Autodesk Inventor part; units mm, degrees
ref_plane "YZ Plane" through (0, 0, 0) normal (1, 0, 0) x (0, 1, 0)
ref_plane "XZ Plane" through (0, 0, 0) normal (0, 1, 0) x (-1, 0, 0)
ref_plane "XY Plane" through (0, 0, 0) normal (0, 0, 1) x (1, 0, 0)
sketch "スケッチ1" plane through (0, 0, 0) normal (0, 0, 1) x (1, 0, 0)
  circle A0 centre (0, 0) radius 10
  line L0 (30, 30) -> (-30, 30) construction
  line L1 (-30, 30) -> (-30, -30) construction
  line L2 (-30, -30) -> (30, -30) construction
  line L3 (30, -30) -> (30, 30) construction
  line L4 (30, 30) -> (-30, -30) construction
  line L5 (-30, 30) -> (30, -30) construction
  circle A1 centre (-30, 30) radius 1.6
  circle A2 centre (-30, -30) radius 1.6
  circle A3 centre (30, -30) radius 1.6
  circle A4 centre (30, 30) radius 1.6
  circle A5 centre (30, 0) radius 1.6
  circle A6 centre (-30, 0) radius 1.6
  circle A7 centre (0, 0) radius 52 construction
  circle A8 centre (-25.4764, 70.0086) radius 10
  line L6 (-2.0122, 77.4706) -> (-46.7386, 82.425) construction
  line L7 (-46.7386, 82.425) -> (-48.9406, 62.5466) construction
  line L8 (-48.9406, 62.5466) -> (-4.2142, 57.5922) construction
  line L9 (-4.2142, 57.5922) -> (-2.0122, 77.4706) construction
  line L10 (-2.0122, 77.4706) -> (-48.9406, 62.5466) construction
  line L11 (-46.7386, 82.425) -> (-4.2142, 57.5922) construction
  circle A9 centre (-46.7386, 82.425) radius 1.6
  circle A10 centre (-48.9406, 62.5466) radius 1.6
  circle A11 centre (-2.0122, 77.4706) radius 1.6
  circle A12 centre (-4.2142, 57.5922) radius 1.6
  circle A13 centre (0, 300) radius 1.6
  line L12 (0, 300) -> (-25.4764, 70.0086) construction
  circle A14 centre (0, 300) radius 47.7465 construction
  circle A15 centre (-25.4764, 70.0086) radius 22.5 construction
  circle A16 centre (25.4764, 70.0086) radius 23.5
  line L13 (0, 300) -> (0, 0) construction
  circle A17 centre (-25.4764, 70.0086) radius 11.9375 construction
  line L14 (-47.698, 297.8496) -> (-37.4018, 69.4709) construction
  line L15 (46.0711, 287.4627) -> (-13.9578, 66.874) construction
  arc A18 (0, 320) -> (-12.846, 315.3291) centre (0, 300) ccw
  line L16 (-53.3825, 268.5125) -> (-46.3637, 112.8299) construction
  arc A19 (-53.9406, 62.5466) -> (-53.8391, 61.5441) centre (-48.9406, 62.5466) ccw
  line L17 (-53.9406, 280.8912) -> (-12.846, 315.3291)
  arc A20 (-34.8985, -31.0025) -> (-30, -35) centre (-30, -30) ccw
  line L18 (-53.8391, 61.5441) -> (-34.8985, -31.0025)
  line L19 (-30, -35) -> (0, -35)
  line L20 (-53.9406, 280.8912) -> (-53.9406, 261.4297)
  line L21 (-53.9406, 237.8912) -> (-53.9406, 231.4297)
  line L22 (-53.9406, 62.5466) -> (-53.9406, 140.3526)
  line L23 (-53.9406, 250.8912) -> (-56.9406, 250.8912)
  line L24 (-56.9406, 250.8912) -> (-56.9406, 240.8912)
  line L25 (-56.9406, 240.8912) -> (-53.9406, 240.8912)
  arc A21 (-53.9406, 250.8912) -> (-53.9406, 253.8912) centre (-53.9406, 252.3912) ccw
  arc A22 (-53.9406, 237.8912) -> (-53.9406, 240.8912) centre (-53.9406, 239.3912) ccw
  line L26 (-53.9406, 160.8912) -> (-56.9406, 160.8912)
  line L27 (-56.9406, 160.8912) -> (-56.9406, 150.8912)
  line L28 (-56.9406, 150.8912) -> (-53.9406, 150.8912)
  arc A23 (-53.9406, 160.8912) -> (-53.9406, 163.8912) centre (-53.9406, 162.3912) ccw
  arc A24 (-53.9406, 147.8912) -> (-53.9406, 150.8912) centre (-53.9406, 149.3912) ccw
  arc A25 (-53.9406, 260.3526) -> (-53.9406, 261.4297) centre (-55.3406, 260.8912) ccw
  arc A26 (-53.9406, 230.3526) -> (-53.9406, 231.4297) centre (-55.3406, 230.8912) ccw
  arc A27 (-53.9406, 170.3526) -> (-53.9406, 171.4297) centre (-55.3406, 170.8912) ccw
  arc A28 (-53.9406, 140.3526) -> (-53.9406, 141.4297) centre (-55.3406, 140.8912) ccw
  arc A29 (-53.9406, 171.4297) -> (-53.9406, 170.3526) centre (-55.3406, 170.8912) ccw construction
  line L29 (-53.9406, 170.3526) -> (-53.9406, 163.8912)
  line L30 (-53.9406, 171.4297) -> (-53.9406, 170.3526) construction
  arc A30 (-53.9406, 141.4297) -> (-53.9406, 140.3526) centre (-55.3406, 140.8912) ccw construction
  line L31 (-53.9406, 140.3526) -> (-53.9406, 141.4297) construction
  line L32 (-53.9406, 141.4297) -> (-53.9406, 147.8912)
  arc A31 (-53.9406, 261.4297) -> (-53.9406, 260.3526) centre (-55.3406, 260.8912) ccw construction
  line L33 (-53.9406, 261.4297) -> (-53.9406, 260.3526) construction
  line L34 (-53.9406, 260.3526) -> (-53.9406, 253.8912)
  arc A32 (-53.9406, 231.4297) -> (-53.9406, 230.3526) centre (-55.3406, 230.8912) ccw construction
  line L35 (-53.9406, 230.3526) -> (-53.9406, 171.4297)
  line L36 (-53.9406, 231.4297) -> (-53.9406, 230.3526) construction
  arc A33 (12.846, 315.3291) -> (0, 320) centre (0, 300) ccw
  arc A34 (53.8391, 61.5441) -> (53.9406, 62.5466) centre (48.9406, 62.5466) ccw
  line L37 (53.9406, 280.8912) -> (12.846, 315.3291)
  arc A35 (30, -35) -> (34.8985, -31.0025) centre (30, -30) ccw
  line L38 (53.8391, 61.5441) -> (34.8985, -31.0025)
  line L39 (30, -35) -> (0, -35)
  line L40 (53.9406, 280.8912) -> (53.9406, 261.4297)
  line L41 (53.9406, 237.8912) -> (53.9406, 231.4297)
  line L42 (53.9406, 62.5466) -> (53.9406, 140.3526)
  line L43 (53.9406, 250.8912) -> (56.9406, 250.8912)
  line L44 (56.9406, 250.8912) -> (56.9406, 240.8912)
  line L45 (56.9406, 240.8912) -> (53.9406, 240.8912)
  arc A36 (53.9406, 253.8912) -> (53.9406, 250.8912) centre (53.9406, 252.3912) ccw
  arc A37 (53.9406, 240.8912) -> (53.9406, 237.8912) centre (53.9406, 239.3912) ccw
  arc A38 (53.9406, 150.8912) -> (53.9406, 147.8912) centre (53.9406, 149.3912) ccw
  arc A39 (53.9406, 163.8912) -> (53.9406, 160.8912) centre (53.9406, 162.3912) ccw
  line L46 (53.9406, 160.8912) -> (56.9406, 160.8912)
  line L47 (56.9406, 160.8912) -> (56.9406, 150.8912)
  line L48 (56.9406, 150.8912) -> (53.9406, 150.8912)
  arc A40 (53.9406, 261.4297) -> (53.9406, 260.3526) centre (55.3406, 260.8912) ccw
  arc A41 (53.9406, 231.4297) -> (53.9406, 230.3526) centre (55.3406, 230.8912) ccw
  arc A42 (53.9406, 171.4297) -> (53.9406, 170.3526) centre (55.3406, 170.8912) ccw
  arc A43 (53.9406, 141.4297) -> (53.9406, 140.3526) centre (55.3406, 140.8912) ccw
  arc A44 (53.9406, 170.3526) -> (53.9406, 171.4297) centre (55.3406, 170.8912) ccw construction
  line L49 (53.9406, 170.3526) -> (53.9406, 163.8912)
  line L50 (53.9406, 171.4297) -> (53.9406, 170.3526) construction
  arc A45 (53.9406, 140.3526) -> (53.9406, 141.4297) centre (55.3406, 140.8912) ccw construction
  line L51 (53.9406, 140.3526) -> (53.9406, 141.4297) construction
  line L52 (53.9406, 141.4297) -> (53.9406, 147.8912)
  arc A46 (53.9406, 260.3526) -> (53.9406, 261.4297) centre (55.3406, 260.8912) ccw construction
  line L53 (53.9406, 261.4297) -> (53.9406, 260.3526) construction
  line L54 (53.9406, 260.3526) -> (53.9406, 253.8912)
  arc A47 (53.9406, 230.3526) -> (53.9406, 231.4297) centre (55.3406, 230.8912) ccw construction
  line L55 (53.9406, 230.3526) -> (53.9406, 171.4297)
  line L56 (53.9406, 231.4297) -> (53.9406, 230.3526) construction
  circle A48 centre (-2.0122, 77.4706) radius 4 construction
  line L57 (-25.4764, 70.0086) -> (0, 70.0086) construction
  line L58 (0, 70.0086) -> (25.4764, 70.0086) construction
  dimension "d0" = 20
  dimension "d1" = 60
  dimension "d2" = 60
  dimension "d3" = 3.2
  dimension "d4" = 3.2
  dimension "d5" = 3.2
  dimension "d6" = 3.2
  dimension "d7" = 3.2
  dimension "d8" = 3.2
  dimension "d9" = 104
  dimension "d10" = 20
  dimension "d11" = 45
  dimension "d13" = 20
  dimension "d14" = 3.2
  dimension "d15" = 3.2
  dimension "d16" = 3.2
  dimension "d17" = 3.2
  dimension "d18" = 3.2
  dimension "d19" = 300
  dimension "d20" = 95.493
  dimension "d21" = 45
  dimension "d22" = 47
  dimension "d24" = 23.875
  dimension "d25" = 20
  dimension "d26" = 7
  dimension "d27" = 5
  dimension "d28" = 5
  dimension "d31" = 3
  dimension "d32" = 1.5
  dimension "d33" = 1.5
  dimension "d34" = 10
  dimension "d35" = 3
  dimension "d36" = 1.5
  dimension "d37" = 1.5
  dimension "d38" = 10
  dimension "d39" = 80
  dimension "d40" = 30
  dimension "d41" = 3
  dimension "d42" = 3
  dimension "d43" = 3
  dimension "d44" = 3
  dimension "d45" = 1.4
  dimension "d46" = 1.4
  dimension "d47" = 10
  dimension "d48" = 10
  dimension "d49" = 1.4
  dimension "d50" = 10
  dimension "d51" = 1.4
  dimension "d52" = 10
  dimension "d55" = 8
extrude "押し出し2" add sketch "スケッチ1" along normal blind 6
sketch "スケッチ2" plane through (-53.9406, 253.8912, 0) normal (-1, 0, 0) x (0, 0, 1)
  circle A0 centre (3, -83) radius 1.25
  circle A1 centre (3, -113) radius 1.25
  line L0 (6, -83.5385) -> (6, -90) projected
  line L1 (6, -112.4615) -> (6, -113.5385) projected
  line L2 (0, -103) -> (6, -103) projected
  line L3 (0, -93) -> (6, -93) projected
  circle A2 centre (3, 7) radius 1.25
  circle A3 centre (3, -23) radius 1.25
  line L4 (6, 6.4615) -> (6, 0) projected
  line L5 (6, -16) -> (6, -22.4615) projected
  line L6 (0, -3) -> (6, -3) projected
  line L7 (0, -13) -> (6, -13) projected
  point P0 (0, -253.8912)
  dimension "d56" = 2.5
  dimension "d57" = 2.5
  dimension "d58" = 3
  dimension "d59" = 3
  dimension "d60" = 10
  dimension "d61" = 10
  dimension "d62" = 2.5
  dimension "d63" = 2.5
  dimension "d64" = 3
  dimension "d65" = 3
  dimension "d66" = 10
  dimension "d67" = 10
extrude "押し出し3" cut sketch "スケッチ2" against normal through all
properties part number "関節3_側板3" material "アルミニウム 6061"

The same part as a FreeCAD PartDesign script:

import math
import FreeCAD as App
import Part
import Sketcher
from FreeCAD import Vector

doc = App.newDocument("Part")
body = doc.addObject("PartDesign::Body", "Body")

# Sketch on XY plane
sketch1 = body.newObject("Sketcher::SketchObject", "Sketch")
sketch1.AttachmentSupport = (doc.getObject("XY_Plane"), [""])
sketch1.MapMode = "FlatFace"
sketch1.addGeometry([
    Part.ArcOfCircle(Part.Circle(Vector(0, 300, 0), Vector(0, 0, 1), 20), math.radians(50.036522), math.radians(90)),  # 0
    Part.ArcOfCircle(Part.Circle(Vector(0, 300, 0), Vector(0, 0, 1), 20.000026), math.radians(90), math.radians(129.963478)),  # 1
    Part.LineSegment(Vector(-12.846, 315.3291, 0), Vector(-53.9406, 280.8912, 0)),  # 2
    Part.LineSegment(Vector(-53.9406, 280.8912, 0), Vector(-53.9406, 261.4297, 0)),  # 3
    Part.ArcOfCircle(Part.Circle(Vector(-55.3406, 260.8912, 0), Vector(0, 0, 1), 1.499994), math.radians(-21.042447), math.radians(21.038882)),  # 4
    Part.LineSegment(Vector(-53.9406, 260.3526, 0), Vector(-53.9406, 253.8912, 0)),  # 5
    Part.ArcOfCircle(Part.Circle(Vector(-53.9406, 252.3912, 0), Vector(0, 0, 1), 1.5), math.radians(-90), math.radians(90)),  # 6
    Part.LineSegment(Vector(-53.9406, 250.8912, 0), Vector(-56.9406, 250.8912, 0)),  # 7
    Part.LineSegment(Vector(-56.9406, 250.8912, 0), Vector(-56.9406, 240.8912, 0)),  # 8
    Part.LineSegment(Vector(-56.9406, 240.8912, 0), Vector(-53.9406, 240.8912, 0)),  # 9
    Part.ArcOfCircle(Part.Circle(Vector(-53.9406, 239.3912, 0), Vector(0, 0, 1), 1.5), math.radians(-90), math.radians(90)),  # 10
    Part.LineSegment(Vector(-53.9406, 237.8912, 0), Vector(-53.9406, 231.4297, 0)),  # 11
    Part.ArcOfCircle(Part.Circle(Vector(-55.3406, 230.8912, 0), Vector(0, 0, 1), 1.499994), math.radians(-21.042447), math.radians(21.038882)),  # 12
    Part.LineSegment(Vector(-53.9406, 230.3526, 0), Vector(-53.9406, 171.4297, 0)),  # 13
    Part.ArcOfCircle(Part.Circle(Vector(-55.3406, 170.8912, 0), Vector(0, 0, 1), 1.499994), math.radians(-21.042447), math.radians(21.038882)),  # 14
    Part.LineSegment(Vector(-53.9406, 170.3526, 0), Vector(-53.9406, 163.8912, 0)),  # 15
    Part.ArcOfCircle(Part.Circle(Vector(-53.9406, 162.3912, 0), Vector(0, 0, 1), 1.5), math.radians(-90), math.radians(90)),  # 16
    Part.LineSegment(Vector(-53.9406, 160.8912, 0), Vector(-56.9406, 160.8912, 0)),  # 17
    Part.LineSegment(Vector(-56.9406, 160.8912, 0), Vector(-56.9406, 150.8912, 0)),  # 18
    Part.LineSegment(Vector(-56.9406, 150.8912, 0), Vector(-53.9406, 150.8912, 0)),  # 19
    Part.ArcOfCircle(Part.Circle(Vector(-53.9406, 149.3912, 0), Vector(0, 0, 1), 1.5), math.radians(-90), math.radians(90)),  # 20
    Part.LineSegment(Vector(-53.9406, 147.8912, 0), Vector(-53.9406, 141.4297, 0)),  # 21
    Part.ArcOfCircle(Part.Circle(Vector(-55.3406, 140.8912, 0), Vector(0, 0, 1), 1.499994), math.radians(-21.042447), math.radians(21.038882)),  # 22
    Part.LineSegment(Vector(-53.9406, 140.3526, 0), Vector(-53.9406, 62.5466, 0)),  # 23
    Part.ArcOfCircle(Part.Circle(Vector(-48.937567, 62.546753, 0), Vector(0, 0, 1), 5.003033), math.radians(-179.998246), math.radians(-168.439118)),  # 24
    Part.LineSegment(Vector(-53.8391, 61.5441, 0), Vector(-34.8985, -31.0025, 0)),  # 25
    Part.ArcOfCircle(Part.Circle(Vector(-30, -30, 0), Vector(0, 0, 1), 5.000031), math.radians(-168.433873), math.radians(-90)),  # 26
    Part.LineSegment(Vector(-30, -35, 0), Vector(30, -35, 0)),  # 27
    Part.ArcOfCircle(Part.Circle(Vector(30, -30, 0), Vector(0, 0, 1), 5), math.radians(-90), math.radians(-11.566127)),  # 28
    Part.LineSegment(Vector(34.8985, -31.0025, 0), Vector(53.8391, 61.5441, 0)),  # 29
    Part.ArcOfCircle(Part.Circle(Vector(48.943598, 62.546143, 0), Vector(0, 0, 1), 4.997002), math.radians(-11.567881), math.radians(0.005245)),  # 30
    Part.LineSegment(Vector(53.9406, 62.5466, 0), Vector(53.9406, 140.3526, 0)),  # 31
    Part.ArcOfCircle(Part.Circle(Vector(55.3406, 140.8912, 0), Vector(0, 0, 1), 1.50003), math.radians(158.961118), math.radians(201.042447)),  # 32
    Part.LineSegment(Vector(53.9406, 141.4297, 0), Vector(53.9406, 147.8912, 0)),  # 33
    Part.ArcOfCircle(Part.Circle(Vector(53.9406, 149.3912, 0), Vector(0, 0, 1), 1.5), math.radians(90), math.radians(270)),  # 34
    Part.LineSegment(Vector(53.9406, 150.8912, 0), Vector(56.9406, 150.8912, 0)),  # 35
    Part.LineSegment(Vector(56.9406, 150.8912, 0), Vector(56.9406, 160.8912, 0)),  # 36
    Part.LineSegment(Vector(56.9406, 160.8912, 0), Vector(53.9406, 160.8912, 0)),  # 37
    Part.ArcOfCircle(Part.Circle(Vector(53.9406, 162.3912, 0), Vector(0, 0, 1), 1.5), math.radians(90), math.radians(270)),  # 38
    Part.LineSegment(Vector(53.9406, 163.8912, 0), Vector(53.9406, 170.3526, 0)),  # 39
    Part.ArcOfCircle(Part.Circle(Vector(55.3406, 170.8912, 0), Vector(0, 0, 1), 1.50003), math.radians(158.961118), math.radians(201.042447)),  # 40
    Part.LineSegment(Vector(53.9406, 171.4297, 0), Vector(53.9406, 230.3526, 0)),  # 41
    Part.ArcOfCircle(Part.Circle(Vector(55.3406, 230.8912, 0), Vector(0, 0, 1), 1.50003), math.radians(158.961118), math.radians(201.042447)),  # 42
    Part.LineSegment(Vector(53.9406, 231.4297, 0), Vector(53.9406, 237.8912, 0)),  # 43
    Part.ArcOfCircle(Part.Circle(Vector(53.9406, 239.3912, 0), Vector(0, 0, 1), 1.5), math.radians(90), math.radians(270)),  # 44
    Part.LineSegment(Vector(53.9406, 240.8912, 0), Vector(56.9406, 240.8912, 0)),  # 45
    Part.LineSegment(Vector(56.9406, 240.8912, 0), Vector(56.9406, 250.8912, 0)),  # 46
    Part.LineSegment(Vector(56.9406, 250.8912, 0), Vector(53.9406, 250.8912, 0)),  # 47
    Part.ArcOfCircle(Part.Circle(Vector(53.9406, 252.3912, 0), Vector(0, 0, 1), 1.5), math.radians(90), math.radians(270)),  # 48
    Part.LineSegment(Vector(53.9406, 253.8912, 0), Vector(53.9406, 260.3526, 0)),  # 49
    Part.ArcOfCircle(Part.Circle(Vector(55.3406, 260.8912, 0), Vector(0, 0, 1), 1.50003), math.radians(158.961118), math.radians(201.042447)),  # 50
    Part.LineSegment(Vector(53.9406, 261.4297, 0), Vector(53.9406, 280.8912, 0)),  # 51
    Part.LineSegment(Vector(53.9406, 280.8912, 0), Vector(12.846, 315.3291, 0)),  # 52
    Part.Circle(Vector(-30, -30, 0), Vector(0, 0, 1), 1.6),  # 53
    Part.Circle(Vector(-30, 0, 0), Vector(0, 0, 1), 1.6),  # 54
    Part.Circle(Vector(-30, 30, 0), Vector(0, 0, 1), 1.6),  # 55
    Part.Circle(Vector(-48.9406, 62.5466, 0), Vector(0, 0, 1), 1.6),  # 56
    Part.Circle(Vector(-46.7386, 82.425, 0), Vector(0, 0, 1), 1.6),  # 57
    Part.Circle(Vector(-25.4764, 70.0086, 0), Vector(0, 0, 1), 10),  # 58
    Part.Circle(Vector(-4.2142, 57.5922, 0), Vector(0, 0, 1), 1.6),  # 59
    Part.Circle(Vector(-2.0122, 77.4706, 0), Vector(0, 0, 1), 1.6),  # 60
    Part.Circle(Vector(0, 0, 0), Vector(0, 0, 1), 10),  # 61
    Part.Circle(Vector(30, -30, 0), Vector(0, 0, 1), 1.6),  # 62
    Part.Circle(Vector(30, 0, 0), Vector(0, 0, 1), 1.6),  # 63
    Part.Circle(Vector(30, 30, 0), Vector(0, 0, 1), 1.6),  # 64
    Part.Circle(Vector(25.4764, 70.0086, 0), Vector(0, 0, 1), 23.5),  # 65
    Part.Circle(Vector(0, 300, 0), Vector(0, 0, 1), 1.6),  # 66
], False)
sketch1.addConstraint([
    Sketcher.Constraint("Coincident", 0, 2, 1, 1),
    Sketcher.Constraint("Coincident", 1, 2, 2, 1),
    Sketcher.Constraint("Coincident", 2, 2, 3, 1),
    Sketcher.Constraint("Coincident", 3, 2, 4, 2),
    Sketcher.Constraint("Coincident", 4, 1, 5, 1),
    Sketcher.Constraint("Coincident", 5, 2, 6, 2),
    Sketcher.Constraint("Coincident", 6, 1, 7, 1),
    Sketcher.Constraint("Coincident", 7, 2, 8, 1),
    Sketcher.Constraint("Coincident", 8, 2, 9, 1),
    Sketcher.Constraint("Coincident", 9, 2, 10, 2),
    Sketcher.Constraint("Coincident", 10, 1, 11, 1),
    Sketcher.Constraint("Coincident", 11, 2, 12, 2),
    Sketcher.Constraint("Coincident", 12, 1, 13, 1),
    Sketcher.Constraint("Coincident", 13, 2, 14, 2),
    Sketcher.Constraint("Coincident", 14, 1, 15, 1),
    Sketcher.Constraint("Coincident", 15, 2, 16, 2),
    Sketcher.Constraint("Coincident", 16, 1, 17, 1),
    Sketcher.Constraint("Coincident", 17, 2, 18, 1),
    Sketcher.Constraint("Coincident", 18, 2, 19, 1),
    Sketcher.Constraint("Coincident", 19, 2, 20, 2),
    Sketcher.Constraint("Coincident", 20, 1, 21, 1),
    Sketcher.Constraint("Coincident", 21, 2, 22, 2),
    Sketcher.Constraint("Coincident", 22, 1, 23, 1),
    Sketcher.Constraint("Coincident", 23, 2, 24, 1),
    Sketcher.Constraint("Coincident", 24, 2, 25, 1),
    Sketcher.Constraint("Coincident", 25, 2, 26, 1),
    Sketcher.Constraint("Coincident", 26, 2, 27, 1),
    Sketcher.Constraint("Coincident", 27, 2, 28, 1),
    Sketcher.Constraint("Coincident", 28, 2, 29, 1),
    Sketcher.Constraint("Coincident", 29, 2, 30, 1),
    Sketcher.Constraint("Coincident", 30, 2, 31, 1),
    Sketcher.Constraint("Coincident", 31, 2, 32, 2),
    Sketcher.Constraint("Coincident", 32, 1, 33, 1),
    Sketcher.Constraint("Coincident", 33, 2, 34, 2),
    Sketcher.Constraint("Coincident", 34, 1, 35, 1),
    Sketcher.Constraint("Coincident", 35, 2, 36, 1),
    Sketcher.Constraint("Coincident", 36, 2, 37, 1),
    Sketcher.Constraint("Coincident", 37, 2, 38, 2),
    Sketcher.Constraint("Coincident", 38, 1, 39, 1),
    Sketcher.Constraint("Coincident", 39, 2, 40, 2),
    Sketcher.Constraint("Coincident", 40, 1, 41, 1),
    Sketcher.Constraint("Coincident", 41, 2, 42, 2),
    Sketcher.Constraint("Coincident", 42, 1, 43, 1),
    Sketcher.Constraint("Coincident", 43, 2, 44, 2),
    Sketcher.Constraint("Coincident", 44, 1, 45, 1),
    Sketcher.Constraint("Coincident", 45, 2, 46, 1),
    Sketcher.Constraint("Coincident", 46, 2, 47, 1),
    Sketcher.Constraint("Coincident", 47, 2, 48, 2),
    Sketcher.Constraint("Coincident", 48, 1, 49, 1),
    Sketcher.Constraint("Coincident", 49, 2, 50, 2),
    Sketcher.Constraint("Coincident", 50, 1, 51, 1),
    Sketcher.Constraint("Coincident", 51, 2, 52, 1),
    Sketcher.Constraint("Coincident", 52, 2, 0, 1),
    Sketcher.Constraint("Vertical", 3),
    Sketcher.Constraint("Vertical", 5),
    Sketcher.Constraint("Horizontal", 7),
    Sketcher.Constraint("Vertical", 8),
    Sketcher.Constraint("Horizontal", 9),
    Sketcher.Constraint("Vertical", 11),
    Sketcher.Constraint("Vertical", 13),
    Sketcher.Constraint("Vertical", 15),
    Sketcher.Constraint("Horizontal", 17),
    Sketcher.Constraint("Vertical", 18),
    Sketcher.Constraint("Horizontal", 19),
    Sketcher.Constraint("Vertical", 21),
    Sketcher.Constraint("Vertical", 23),
    Sketcher.Constraint("Horizontal", 27),
    Sketcher.Constraint("Vertical", 31),
    Sketcher.Constraint("Vertical", 33),
    Sketcher.Constraint("Horizontal", 35),
    Sketcher.Constraint("Vertical", 36),
    Sketcher.Constraint("Horizontal", 37),
    Sketcher.Constraint("Vertical", 39),
    Sketcher.Constraint("Vertical", 41),
    Sketcher.Constraint("Vertical", 43),
    Sketcher.Constraint("Horizontal", 45),
    Sketcher.Constraint("Vertical", 46),
    Sketcher.Constraint("Horizontal", 47),
    Sketcher.Constraint("Vertical", 49),
    Sketcher.Constraint("Vertical", 51),
    Sketcher.Constraint("Coincident", 61, 3, -1, 1),
    Sketcher.Constraint("Coincident", 1, 3, 0, 3),
    Sketcher.Constraint("Coincident", 53, 3, 26, 3),
    Sketcher.Constraint("Coincident", 62, 3, 28, 3),
    Sketcher.Constraint("Coincident", 66, 3, 0, 3),
    Sketcher.Constraint("PointOnObject", 0, 3, -2),
    Sketcher.Constraint("PointOnObject", 54, 3, -1),
    Sketcher.Constraint("PointOnObject", 63, 3, -1),
    Sketcher.Constraint("PointOnObject", 0, 2, -2),
    Sketcher.Constraint("Diameter", 58, 20.0),
    Sketcher.Constraint("Diameter", 61, 20.0),
    Sketcher.Constraint("Diameter", 65, 47.0),
    Sketcher.Constraint("Radius", 0, 20.0),
    Sketcher.Constraint("Radius", 26, 5.0),
    Sketcher.Constraint("Radius", 28, 5.0),
    Sketcher.Constraint("Diameter", 53, 3.2),
    Sketcher.Constraint("Diameter", 54, 3.2),
    Sketcher.Constraint("Diameter", 55, 3.2),
    Sketcher.Constraint("Diameter", 56, 3.2),
    Sketcher.Constraint("Diameter", 57, 3.2),
    Sketcher.Constraint("Diameter", 59, 3.2),
    Sketcher.Constraint("Diameter", 60, 3.2),
    Sketcher.Constraint("Diameter", 62, 3.2),
    Sketcher.Constraint("Diameter", 63, 3.2),
    Sketcher.Constraint("Diameter", 64, 3.2),
    Sketcher.Constraint("Diameter", 66, 3.2),
    Sketcher.Constraint("Radius", 4, 1.5),
    Sketcher.Constraint("Radius", 6, 1.5),
    Sketcher.Constraint("Radius", 10, 1.5),
    Sketcher.Constraint("Radius", 12, 1.5),
    Sketcher.Constraint("Radius", 14, 1.5),
    Sketcher.Constraint("Radius", 16, 1.5),
    Sketcher.Constraint("Radius", 20, 1.5),
    Sketcher.Constraint("Radius", 22, 1.5),
    Sketcher.Constraint("Radius", 32, 1.5),
    Sketcher.Constraint("Radius", 34, 1.5),
    Sketcher.Constraint("Radius", 38, 1.5),
    Sketcher.Constraint("Radius", 40, 1.5),
    Sketcher.Constraint("Radius", 42, 1.5),
    Sketcher.Constraint("Radius", 44, 1.5),
    Sketcher.Constraint("Radius", 48, 1.5),
    Sketcher.Constraint("Radius", 50, 1.5),
    Sketcher.Constraint("DistanceX", 7, 2, 7, 1, 3.0),
    Sketcher.Constraint("DistanceX", 9, 1, 9, 2, 3.0),
    Sketcher.Constraint("DistanceX", 17, 2, 17, 1, 3.0),
    Sketcher.Constraint("DistanceX", 19, 1, 19, 2, 3.0),
    Sketcher.Constraint("DistanceX", 27, 1, 27, 2, 60.0),
    Sketcher.Constraint("DistanceX", 35, 1, 35, 2, 3.0),
    Sketcher.Constraint("DistanceX", 37, 2, 37, 1, 3.0),
    Sketcher.Constraint("DistanceX", 45, 1, 45, 2, 3.0),
    Sketcher.Constraint("DistanceX", 47, 2, 47, 1, 3.0),
    Sketcher.Constraint("DistanceY", 8, 2, 8, 1, 10.0),
    Sketcher.Constraint("DistanceY", 18, 2, 18, 1, 10.0),
    Sketcher.Constraint("DistanceY", 36, 1, 36, 2, 10.0),
    Sketcher.Constraint("DistanceY", 46, 1, 46, 2, 10.0),
    Sketcher.Constraint("DistanceY", -1, 1, 0, 3, 300.0),
    Sketcher.Constraint("DistanceX", 26, 3, -1, 1, 30.0),
    Sketcher.Constraint("DistanceY", 26, 3, -1, 1, 30.0),
    Sketcher.Constraint("DistanceX", -1, 1, 28, 3, 30.0),
    Sketcher.Constraint("DistanceX", 54, 3, -1, 1, 30.0),
    Sketcher.Constraint("DistanceX", 55, 3, -1, 1, 30.0),
    Sketcher.Constraint("DistanceY", -1, 1, 55, 3, 30.0),
    Sketcher.Constraint("DistanceX", -1, 1, 63, 3, 30.0),
    Sketcher.Constraint("DistanceX", -1, 1, 64, 3, 30.0),
    Sketcher.Constraint("DistanceY", -1, 1, 64, 3, 30.0),
    Sketcher.Constraint("DistanceX", 26, 2, -1, 1, 30.0),
    Sketcher.Constraint("Radius", 24, 5.003),
    Sketcher.Constraint("Radius", 30, 4.997),
    Sketcher.Constraint("DistanceY", 13, 2, 13, 1, 58.923),
    Sketcher.Constraint("DistanceY", 23, 2, 23, 1, 77.806),
    Sketcher.Constraint("DistanceY", 31, 1, 31, 2, 77.806),
    Sketcher.Constraint("DistanceY", 41, 1, 41, 2, 58.923),
    Sketcher.Constraint("Distance", 25, 94.465),
    Sketcher.Constraint("Distance", 29, 94.465),
    Sketcher.Constraint("DistanceY", 3, 2, 3, 1, 19.4615),
    Sketcher.Constraint("DistanceY", 5, 2, 5, 1, 6.4614),
    Sketcher.Constraint("DistanceY", 11, 2, 11, 1, 6.4615),
    Sketcher.Constraint("DistanceY", 15, 2, 15, 1, 6.4614),
    Sketcher.Constraint("DistanceY", 21, 2, 21, 1, 6.4615),
    Sketcher.Constraint("DistanceY", 33, 1, 33, 2, 6.4615),
    Sketcher.Constraint("DistanceY", 39, 1, 39, 2, 6.4614),
    Sketcher.Constraint("DistanceY", 43, 1, 43, 2, 6.4615),
    Sketcher.Constraint("DistanceY", 49, 1, 49, 2, 6.4614),
    Sketcher.Constraint("DistanceY", 51, 1, 51, 2, 19.4615),
    Sketcher.Constraint("DistanceY", -1, 1, 57, 3, 82.425),
    Sketcher.Constraint("DistanceX", 1, 2, -1, 1, 12.846),
    Sketcher.Constraint("DistanceX", 24, 2, -1, 1, 53.839),
    Sketcher.Constraint("DistanceY", -1, 1, 24, 2, 61.544),
    Sketcher.Constraint("DistanceX", -1, 1, 29, 2, 53.839),
    Sketcher.Constraint("DistanceY", -1, 1, 29, 2, 61.544),
    Sketcher.Constraint("DistanceX", -1, 1, 52, 2, 12.846),
    Sketcher.Constraint("Distance", 2, 53.6166),
    Sketcher.Constraint("Distance", 52, 53.6166),
    Sketcher.Constraint("DistanceX", 4, 3, -1, 1, 55.3406),
    Sketcher.Constraint("DistanceY", -1, 1, 4, 3, 260.8912),
    Sketcher.Constraint("DistanceX", 6, 3, -1, 1, 53.9406),
    Sketcher.Constraint("DistanceY", -1, 1, 6, 3, 252.3912),
    Sketcher.Constraint("DistanceX", 10, 3, -1, 1, 53.9406),
    Sketcher.Constraint("DistanceX", 12, 3, -1, 1, 55.3406),
    Sketcher.Constraint("DistanceY", -1, 1, 12, 3, 230.8912),
    Sketcher.Constraint("DistanceX", 14, 3, -1, 1, 55.3406),
    Sketcher.Constraint("DistanceY", -1, 1, 14, 3, 170.8912),
    Sketcher.Constraint("DistanceX", 16, 3, -1, 1, 53.9406),
    Sketcher.Constraint("DistanceY", -1, 1, 16, 3, 162.3912),
    Sketcher.Constraint("DistanceX", 20, 3, -1, 1, 53.9406),
    Sketcher.Constraint("DistanceX", 22, 3, -1, 1, 55.3406),
    Sketcher.Constraint("DistanceY", -1, 1, 22, 3, 140.8912),
    Sketcher.Constraint("DistanceX", 24, 3, -1, 1, 48.9376),
    Sketcher.Constraint("DistanceX", -1, 1, 30, 3, 48.9436),
    Sketcher.Constraint("DistanceX", -1, 1, 32, 3, 55.3406),
    Sketcher.Constraint("DistanceY", -1, 1, 32, 3, 140.8912),
    Sketcher.Constraint("DistanceX", -1, 1, 34, 3, 53.9406),
    Sketcher.Constraint("DistanceY", -1, 1, 34, 3, 149.3912),
    Sketcher.Constraint("DistanceX", -1, 1, 38, 3, 53.9406),
    Sketcher.Constraint("DistanceX", -1, 1, 40, 3, 55.3406),
    Sketcher.Constraint("DistanceY", -1, 1, 40, 3, 170.8912),
    Sketcher.Constraint("DistanceX", -1, 1, 42, 3, 55.3406),
    Sketcher.Constraint("DistanceY", -1, 1, 42, 3, 230.8912),
    Sketcher.Constraint("DistanceX", -1, 1, 44, 3, 53.9406),
    Sketcher.Constraint("DistanceY", -1, 1, 44, 3, 239.3912),
    Sketcher.Constraint("DistanceX", -1, 1, 48, 3, 53.9406),
    Sketcher.Constraint("DistanceX", -1, 1, 50, 3, 55.3406),
    Sketcher.Constraint("DistanceY", -1, 1, 50, 3, 260.8912),
    Sketcher.Constraint("DistanceX", 56, 3, -1, 1, 48.9406),
    Sketcher.Constraint("DistanceY", -1, 1, 56, 3, 62.5466),
    Sketcher.Constraint("DistanceX", 57, 3, -1, 1, 46.7386),
    Sketcher.Constraint("DistanceX", 58, 3, -1, 1, 25.4764),
    Sketcher.Constraint("DistanceY", -1, 1, 58, 3, 70.0086),
    Sketcher.Constraint("DistanceX", 59, 3, -1, 1, 4.2142),
    Sketcher.Constraint("DistanceY", -1, 1, 59, 3, 57.5922),
    Sketcher.Constraint("DistanceX", 60, 3, -1, 1, 2.0122),
    Sketcher.Constraint("DistanceY", -1, 1, 60, 3, 77.4706),
    Sketcher.Constraint("DistanceX", -1, 1, 65, 3, 25.4764),
    Sketcher.Constraint("DistanceY", -1, 1, 65, 3, 70.0086),
    Sketcher.Constraint("DistanceX", 6, 1, -1, 1, 53.9406),
    Sketcher.Constraint("DistanceX", 16, 1, -1, 1, 53.9406),
    Sketcher.Constraint("DistanceX", -1, 1, 34, 1, 53.9406),
    Sketcher.Constraint("DistanceX", -1, 1, 44, 1, 53.9406),
])
pad1 = body.newObject("PartDesign::Pad", "Pad")
pad1.Profile = sketch1
pad1.Length = 6

# Sketch on YZ plane
sketch2 = body.newObject("Sketcher::SketchObject", "Sketch001")
sketch2.AttachmentSupport = (doc.getObject("YZ_Plane"), [""])
sketch2.MapMode = "FlatFace"
sketch2.AttachmentOffset = App.Placement(Vector(0, 0, -53.9406), App.Rotation())
sketch2.addGeometry([
    Part.Circle(Vector(170.9, 3, 0), Vector(0, 0, 1), 1.2),
    Part.Circle(Vector(140.9, 3, 0), Vector(0, 0, 1), 1.2),
    Part.Circle(Vector(260.9, 3, 0), Vector(0, 0, 1), 1.2),
    Part.Circle(Vector(230.9, 3, 0), Vector(0, 0, 1), 1.2),
], False)
sketch2.addConstraint([
    Sketcher.Constraint("Equal", 0, 1),
    Sketcher.Constraint("Equal", 1, 2),
    Sketcher.Constraint("Equal", 2, 3),
    Sketcher.Constraint("Horizontal", 0, 3, 1, 3),
    Sketcher.Constraint("Horizontal", 1, 3, 2, 3),
    Sketcher.Constraint("Horizontal", 2, 3, 3, 3),
    Sketcher.Constraint("Diameter", 0, 2.5),
    Sketcher.Constraint("DistanceY", -1, 1, 0, 3, 3.0),
    Sketcher.Constraint("DistanceX", 1, 3, 0, 3, 30.0),
    Sketcher.Constraint("DistanceX", 0, 3, 2, 3, 90.0),
    Sketcher.Constraint("DistanceX", 3, 3, 2, 3, 30.0),
    Sketcher.Constraint("DistanceX", -1, 1, 0, 3, 170.8912),
])
pocket1 = body.newObject("PartDesign::Pocket", "Pocket")
pocket1.Profile = sketch2
pocket1.Type = "ThroughAll"
pocket1.Reversed = True

doc.recompute()
